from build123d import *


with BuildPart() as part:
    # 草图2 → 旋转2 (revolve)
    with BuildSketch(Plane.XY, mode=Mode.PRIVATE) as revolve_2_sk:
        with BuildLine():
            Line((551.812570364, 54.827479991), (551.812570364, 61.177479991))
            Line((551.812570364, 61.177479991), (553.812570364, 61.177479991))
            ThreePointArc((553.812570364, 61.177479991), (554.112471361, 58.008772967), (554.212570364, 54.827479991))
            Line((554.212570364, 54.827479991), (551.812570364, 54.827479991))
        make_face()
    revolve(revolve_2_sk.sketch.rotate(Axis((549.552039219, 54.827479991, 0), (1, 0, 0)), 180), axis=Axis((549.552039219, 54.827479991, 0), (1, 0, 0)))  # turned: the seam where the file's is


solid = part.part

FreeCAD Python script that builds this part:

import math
import FreeCAD as App
import Part
import Sketcher
Q = App.Units.Quantity

doc = App.newDocument("Part")
params = doc.addObject("Spreadsheet::Sheet", "Params")
for row, (alias, value) in enumerate([
    ("sketch1_width", "2 mm"),
    ("sketch1_width2", "2.4 mm"),
    ("sketch1_height", "6.35 mm"),
    ("revolution_angle", "360 deg"),
], start=1):
    params.set(f"A{row}", alias)
    params.set(f"B{row}", "=" + value)
    params.setAlias(f"B{row}", alias)

body = doc.addObject("PartDesign::Body", "Body")

sketch1 = body.newObject("Sketcher::SketchObject", "Sketch")
sketch1.AttachmentSupport = (doc.getObject("XY_Plane"), [""])
sketch1.MapMode = "FlatFace"
sketch1.addGeometry([
    Part.LineSegment(App.Vector(551.8, 61.2, 0), App.Vector(551.8, 54.8, 0)),
    Part.LineSegment(App.Vector(551.8, 54.8, 0), App.Vector(554.2, 54.8, 0)),
    Part.ArcOfCircle(Part.Circle(App.Vector(503.6, 54.8, 0), App.Vector(0, 0, 1), 50.6), math.radians(0), math.radians(7.21)),
    Part.LineSegment(App.Vector(553.8, 61.2, 0), App.Vector(551.8, 61.2, 0)),
], False)
sketch1.addGeometry(Part.LineSegment(App.Vector(503.6, 54.8, 0), App.Vector(554.2, 54.8, 0)), True)
sketch1.addConstraint([
    Sketcher.Constraint("Coincident", 0, 2, 1, 1),
    Sketcher.Constraint("Coincident", 1, 2, 2, 1),
    Sketcher.Constraint("Coincident", 2, 2, 3, 1),
    Sketcher.Constraint("Coincident", 3, 2, 0, 1),
    Sketcher.Constraint("Vertical", 0),
    Sketcher.Constraint("Horizontal", 1),
    Sketcher.Constraint("Horizontal", 3),
    Sketcher.Constraint("Horizontal", 4),
    Sketcher.Constraint("Coincident", 4, 1, 2, 3),
    Sketcher.Constraint("Coincident", 4, 2, 1, 2),
    Sketcher.Constraint("DistanceX", 3, 2, 3, 1, Q("2 mm")),
    Sketcher.Constraint("DistanceX", 1, 1, 1, 2, Q("2.4 mm")),
    Sketcher.Constraint("DistanceY", 0, 2, 0, 1, Q("6.35 mm")),
    Sketcher.Constraint("DistanceY", -1, 1, 2, 3, Q("54.82748 mm")),
    Sketcher.Constraint("DistanceX", -1, 1, 0, 2, Q("551.81257 mm")),
])
sketch1.setExpression("Constraints[10]", "Params.sketch1_width")
sketch1.setExpression("Constraints[11]", "Params.sketch1_width2")
sketch1.setExpression("Constraints[12]", "Params.sketch1_height")
revolution = body.newObject("PartDesign::Revolution", "Revolution")
revolution.Profile = sketch1
revolution.ReferenceAxis = (sketch1, ["Axis0"])
revolution.setExpression("Angle", "Params.revolution_angle")

doc.recompute()
